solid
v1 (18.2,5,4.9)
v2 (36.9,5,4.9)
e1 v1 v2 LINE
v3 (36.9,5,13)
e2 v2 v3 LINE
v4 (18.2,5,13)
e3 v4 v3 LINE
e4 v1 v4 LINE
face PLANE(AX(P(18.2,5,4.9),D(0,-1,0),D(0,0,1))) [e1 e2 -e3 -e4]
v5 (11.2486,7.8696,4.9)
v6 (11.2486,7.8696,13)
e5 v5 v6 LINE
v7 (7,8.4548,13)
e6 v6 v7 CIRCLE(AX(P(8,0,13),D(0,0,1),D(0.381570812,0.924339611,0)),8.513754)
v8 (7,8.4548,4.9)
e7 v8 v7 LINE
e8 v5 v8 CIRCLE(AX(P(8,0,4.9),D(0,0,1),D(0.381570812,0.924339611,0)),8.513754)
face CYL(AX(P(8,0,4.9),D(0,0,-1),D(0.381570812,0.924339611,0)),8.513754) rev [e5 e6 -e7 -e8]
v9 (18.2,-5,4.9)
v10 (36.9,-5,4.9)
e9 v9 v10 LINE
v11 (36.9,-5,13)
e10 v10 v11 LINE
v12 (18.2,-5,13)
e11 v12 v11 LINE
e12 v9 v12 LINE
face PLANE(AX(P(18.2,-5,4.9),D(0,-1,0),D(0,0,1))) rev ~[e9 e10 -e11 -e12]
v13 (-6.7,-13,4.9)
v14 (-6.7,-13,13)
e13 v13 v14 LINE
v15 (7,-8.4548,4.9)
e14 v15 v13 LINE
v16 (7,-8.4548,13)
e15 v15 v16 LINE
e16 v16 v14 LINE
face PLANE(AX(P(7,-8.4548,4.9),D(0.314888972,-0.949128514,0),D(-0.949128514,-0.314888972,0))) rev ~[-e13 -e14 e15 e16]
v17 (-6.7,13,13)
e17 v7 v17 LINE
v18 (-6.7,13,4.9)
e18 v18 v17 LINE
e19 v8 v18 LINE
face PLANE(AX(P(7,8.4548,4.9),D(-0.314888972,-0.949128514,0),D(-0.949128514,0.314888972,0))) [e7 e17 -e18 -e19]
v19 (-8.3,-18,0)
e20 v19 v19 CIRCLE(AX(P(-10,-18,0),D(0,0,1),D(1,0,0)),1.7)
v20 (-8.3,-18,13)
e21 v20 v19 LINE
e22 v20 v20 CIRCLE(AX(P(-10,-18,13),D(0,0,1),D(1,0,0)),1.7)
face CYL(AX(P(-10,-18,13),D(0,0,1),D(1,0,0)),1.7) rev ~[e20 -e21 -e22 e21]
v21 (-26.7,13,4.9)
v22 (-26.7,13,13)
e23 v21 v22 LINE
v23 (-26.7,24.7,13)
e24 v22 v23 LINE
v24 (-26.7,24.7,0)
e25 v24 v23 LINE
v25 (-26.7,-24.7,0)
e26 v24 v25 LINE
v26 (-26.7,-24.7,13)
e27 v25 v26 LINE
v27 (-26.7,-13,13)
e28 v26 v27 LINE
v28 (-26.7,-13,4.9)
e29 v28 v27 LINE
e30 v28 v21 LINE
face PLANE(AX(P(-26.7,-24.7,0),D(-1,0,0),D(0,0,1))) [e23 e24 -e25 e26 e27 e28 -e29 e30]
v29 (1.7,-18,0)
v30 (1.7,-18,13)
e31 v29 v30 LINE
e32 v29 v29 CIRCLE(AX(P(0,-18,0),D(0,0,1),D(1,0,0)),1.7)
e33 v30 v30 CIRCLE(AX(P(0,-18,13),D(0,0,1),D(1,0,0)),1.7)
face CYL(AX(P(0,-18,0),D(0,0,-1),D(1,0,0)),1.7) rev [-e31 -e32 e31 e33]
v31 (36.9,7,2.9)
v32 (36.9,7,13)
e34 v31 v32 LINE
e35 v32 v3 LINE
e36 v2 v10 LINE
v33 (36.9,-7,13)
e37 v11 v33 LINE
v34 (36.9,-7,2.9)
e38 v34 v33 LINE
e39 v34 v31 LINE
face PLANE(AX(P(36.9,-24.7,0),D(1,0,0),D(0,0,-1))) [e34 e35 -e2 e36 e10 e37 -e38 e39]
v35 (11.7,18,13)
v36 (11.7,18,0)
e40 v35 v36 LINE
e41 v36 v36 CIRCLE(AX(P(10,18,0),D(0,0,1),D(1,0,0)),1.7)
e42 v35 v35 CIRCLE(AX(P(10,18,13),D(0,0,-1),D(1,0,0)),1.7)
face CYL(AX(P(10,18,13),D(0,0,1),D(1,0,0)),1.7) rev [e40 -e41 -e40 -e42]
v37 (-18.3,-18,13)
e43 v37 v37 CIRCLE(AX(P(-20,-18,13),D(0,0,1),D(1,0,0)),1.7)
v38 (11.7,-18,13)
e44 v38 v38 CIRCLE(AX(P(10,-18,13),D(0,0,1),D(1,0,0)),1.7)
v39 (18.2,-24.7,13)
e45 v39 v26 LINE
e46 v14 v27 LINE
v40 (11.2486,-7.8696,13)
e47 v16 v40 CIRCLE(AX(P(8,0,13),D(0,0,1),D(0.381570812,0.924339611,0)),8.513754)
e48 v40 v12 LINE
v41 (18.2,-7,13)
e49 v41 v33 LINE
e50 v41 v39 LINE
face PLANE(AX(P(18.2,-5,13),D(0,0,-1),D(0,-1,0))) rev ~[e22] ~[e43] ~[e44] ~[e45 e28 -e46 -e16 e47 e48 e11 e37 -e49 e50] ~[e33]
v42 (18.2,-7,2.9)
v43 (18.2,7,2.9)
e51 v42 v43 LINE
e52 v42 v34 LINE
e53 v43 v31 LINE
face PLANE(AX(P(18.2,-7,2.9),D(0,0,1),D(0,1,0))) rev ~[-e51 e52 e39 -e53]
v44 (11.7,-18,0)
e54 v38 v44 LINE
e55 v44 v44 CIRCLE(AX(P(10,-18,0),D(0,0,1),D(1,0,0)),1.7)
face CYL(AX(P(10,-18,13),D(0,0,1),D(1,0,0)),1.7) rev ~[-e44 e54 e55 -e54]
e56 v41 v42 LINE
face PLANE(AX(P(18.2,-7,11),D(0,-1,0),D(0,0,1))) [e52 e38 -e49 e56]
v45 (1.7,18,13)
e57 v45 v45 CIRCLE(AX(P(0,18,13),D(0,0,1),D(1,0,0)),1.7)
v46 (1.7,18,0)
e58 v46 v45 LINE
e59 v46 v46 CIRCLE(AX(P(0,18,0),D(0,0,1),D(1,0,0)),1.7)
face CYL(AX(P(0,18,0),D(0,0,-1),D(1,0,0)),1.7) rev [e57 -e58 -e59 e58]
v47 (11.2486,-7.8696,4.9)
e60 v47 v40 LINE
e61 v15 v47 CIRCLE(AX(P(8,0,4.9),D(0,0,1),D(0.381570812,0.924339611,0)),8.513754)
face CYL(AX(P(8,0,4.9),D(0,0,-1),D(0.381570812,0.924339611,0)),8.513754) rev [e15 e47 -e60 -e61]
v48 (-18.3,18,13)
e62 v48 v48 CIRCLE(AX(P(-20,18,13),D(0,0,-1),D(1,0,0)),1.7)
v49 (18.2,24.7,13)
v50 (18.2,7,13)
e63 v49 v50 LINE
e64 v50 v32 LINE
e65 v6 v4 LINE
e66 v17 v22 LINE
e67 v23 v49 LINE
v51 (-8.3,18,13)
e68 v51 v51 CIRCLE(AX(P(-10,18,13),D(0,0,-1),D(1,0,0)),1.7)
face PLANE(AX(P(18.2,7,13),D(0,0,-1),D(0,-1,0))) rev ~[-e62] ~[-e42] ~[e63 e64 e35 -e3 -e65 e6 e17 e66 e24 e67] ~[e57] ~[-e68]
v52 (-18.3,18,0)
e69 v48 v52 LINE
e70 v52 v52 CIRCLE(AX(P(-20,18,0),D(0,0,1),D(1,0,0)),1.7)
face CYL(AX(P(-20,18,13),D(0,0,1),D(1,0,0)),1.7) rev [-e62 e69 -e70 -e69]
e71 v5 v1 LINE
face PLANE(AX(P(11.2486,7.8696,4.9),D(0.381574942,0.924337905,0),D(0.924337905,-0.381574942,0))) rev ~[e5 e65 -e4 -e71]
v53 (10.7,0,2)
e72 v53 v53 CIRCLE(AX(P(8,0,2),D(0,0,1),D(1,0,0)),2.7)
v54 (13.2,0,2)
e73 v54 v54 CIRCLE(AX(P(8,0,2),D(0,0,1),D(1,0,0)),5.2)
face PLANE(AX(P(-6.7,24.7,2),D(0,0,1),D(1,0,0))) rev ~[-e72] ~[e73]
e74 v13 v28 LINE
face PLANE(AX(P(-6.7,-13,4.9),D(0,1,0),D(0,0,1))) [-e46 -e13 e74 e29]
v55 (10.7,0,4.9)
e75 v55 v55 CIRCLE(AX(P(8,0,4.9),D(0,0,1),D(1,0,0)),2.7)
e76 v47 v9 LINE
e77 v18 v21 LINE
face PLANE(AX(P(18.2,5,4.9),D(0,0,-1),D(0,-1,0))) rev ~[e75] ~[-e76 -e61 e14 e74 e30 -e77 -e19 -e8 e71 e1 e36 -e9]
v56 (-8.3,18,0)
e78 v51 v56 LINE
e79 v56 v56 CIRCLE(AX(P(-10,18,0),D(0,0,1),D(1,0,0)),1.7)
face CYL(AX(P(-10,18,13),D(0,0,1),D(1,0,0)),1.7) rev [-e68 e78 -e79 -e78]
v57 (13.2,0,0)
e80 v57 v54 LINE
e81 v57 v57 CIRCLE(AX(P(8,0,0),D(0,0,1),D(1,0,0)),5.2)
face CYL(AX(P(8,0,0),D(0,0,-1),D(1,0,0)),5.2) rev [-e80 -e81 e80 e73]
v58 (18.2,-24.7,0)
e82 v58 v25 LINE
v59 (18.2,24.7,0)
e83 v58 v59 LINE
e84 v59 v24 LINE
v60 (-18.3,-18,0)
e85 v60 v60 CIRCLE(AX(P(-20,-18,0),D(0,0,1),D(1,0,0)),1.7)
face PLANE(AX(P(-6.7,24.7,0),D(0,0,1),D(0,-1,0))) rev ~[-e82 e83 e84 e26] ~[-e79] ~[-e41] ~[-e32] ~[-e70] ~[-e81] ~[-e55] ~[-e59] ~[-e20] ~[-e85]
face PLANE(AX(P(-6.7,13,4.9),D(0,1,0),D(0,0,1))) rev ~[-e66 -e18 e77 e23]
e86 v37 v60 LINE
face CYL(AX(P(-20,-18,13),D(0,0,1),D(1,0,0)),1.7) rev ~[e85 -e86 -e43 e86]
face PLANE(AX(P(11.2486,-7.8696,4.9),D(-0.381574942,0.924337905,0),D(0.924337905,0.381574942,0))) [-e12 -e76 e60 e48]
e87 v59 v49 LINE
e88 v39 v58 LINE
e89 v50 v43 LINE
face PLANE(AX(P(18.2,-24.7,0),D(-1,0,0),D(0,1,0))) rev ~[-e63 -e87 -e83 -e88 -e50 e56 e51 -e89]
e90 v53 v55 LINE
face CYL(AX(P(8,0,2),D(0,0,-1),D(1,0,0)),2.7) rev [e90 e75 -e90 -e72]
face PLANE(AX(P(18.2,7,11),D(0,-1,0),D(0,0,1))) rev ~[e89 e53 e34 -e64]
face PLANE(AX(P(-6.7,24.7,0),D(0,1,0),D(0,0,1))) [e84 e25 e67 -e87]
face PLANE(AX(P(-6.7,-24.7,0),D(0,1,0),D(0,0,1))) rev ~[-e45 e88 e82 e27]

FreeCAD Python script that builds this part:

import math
import FreeCAD as App
import Part
import Sketcher


def add_polygon(sketch, points):
    """Adds a closed chain of lines whose ends are joined by coincident constraints."""
    first, n = sketch.GeometryCount, len(points)
    for a, b in zip(points, points[1:] + points[:1]):
        sketch.addGeometry(Part.LineSegment(App.Vector(*a, 0), App.Vector(*b, 0)), False)
    for i in range(n):
        sketch.addConstraint(Sketcher.Constraint("Coincident", first + i, 2, first + (i + 1) % n, 1))

doc = App.newDocument("Part")
body = doc.addObject("PartDesign::Body", "Body")

sketch1 = body.newObject("Sketcher::SketchObject", "Sketch")
sketch1.AttachmentSupport = (doc.getObject("XY_Plane"), [""])
sketch1.MapMode = "FlatFace"
add_polygon(sketch1, [(18.2, -24.7), (18.2, 24.7), (-6.7, 24.7), (-6.7, -24.7)])
sketch1.addGeometry(Part.Circle(App.Vector(0, -18, 0), App.Vector(0, 0, 1), 1.7), False)
sketch1.addGeometry(Part.Circle(App.Vector(0, 18, 0), App.Vector(0, 0, 1), 1.7), False)
sketch1.addGeometry(Part.Circle(App.Vector(8, 0, 0), App.Vector(0, 0, 1), 5.2), False)
sketch1.addConstraint([
    Sketcher.Constraint("Vertical", 0),
    Sketcher.Constraint("Horizontal", 1),
    Sketcher.Constraint("Vertical", 2),
    Sketcher.Constraint("Horizontal", 3),
    Sketcher.Constraint("Equal", 4, 5),
    Sketcher.Constraint("Symmetric", 4, 3, 5, 3, -1, 1),
    Sketcher.Constraint("PointOnObject", 4, 3, -2),
    Sketcher.Constraint("PointOnObject", 6, 3, -1),
    Sketcher.Constraint("Diameter", 4, 3.4),
    Sketcher.Constraint("Diameter", 6, 10.4),
    Sketcher.Constraint("DistanceX", 1, 2, 1, 1, 24.9),
    Sketcher.Constraint("DistanceY", 0, 1, 0, 2, 49.4),
    Sketcher.Constraint("DistanceY", 4, 3, -1, 1, 18.0),
    Sketcher.Constraint("DistanceX", -1, 1, 6, 3, 8.0),
    Sketcher.Constraint("DistanceX", -1, 1, 0, 2, 18.2),
    Sketcher.Constraint("DistanceY", -1, 1, 0, 2, 24.7),
])
pad1 = body.newObject("PartDesign::Pad", "Pad")
pad1.Profile = sketch1
pad1.Length = 2

sketch2 = body.newObject("Sketcher::SketchObject", "Sketch001")
sketch2.AttachmentSupport = (doc.getObject("XY_Plane"), [""])
sketch2.MapMode = "FlatFace"
sketch2.AttachmentOffset = App.Placement(App.Vector(0, 0, 2), App.Rotation())
add_polygon(sketch2, [(18.2, 24.7), (-6.7, 24.7), (-6.7, -24.7), (18.2, -24.7)])
sketch2.addGeometry(Part.Circle(App.Vector(0, -18, 0), App.Vector(0, 0, 1), 1.7), False)
sketch2.addGeometry(Part.Circle(App.Vector(0, 18, 0), App.Vector(0, 0, 1), 1.7), False)
sketch2.addGeometry(Part.Circle(App.Vector(8, 0, 0), App.Vector(0, 0, 1), 2.7), False)
sketch2.addConstraint([
    Sketcher.Constraint("Horizontal", 0),
    Sketcher.Constraint("Vertical", 1),
    Sketcher.Constraint("Horizontal", 2),
    Sketcher.Constraint("Vertical", 3),
    Sketcher.Constraint("Equal", 4, 5),
    Sketcher.Constraint("Symmetric", 4, 3, 5, 3, -1, 1),
    Sketcher.Constraint("PointOnObject", 4, 3, -2),
    Sketcher.Constraint("PointOnObject", 6, 3, -1),
    Sketcher.Constraint("Diameter", 4, 3.4),
    Sketcher.Constraint("Diameter", 6, 5.4),
    Sketcher.Constraint("DistanceX", 0, 2, 0, 1, 24.9),
    Sketcher.Constraint("DistanceY", 1, 2, 1, 1, 49.4),
    Sketcher.Constraint("DistanceY", 4, 3, -1, 1, 18.0),
    Sketcher.Constraint("DistanceX", -1, 1, 6, 3, 8.0),
    Sketcher.Constraint("DistanceX", 0, 2, -1, 1, 6.7),
    Sketcher.Constraint("DistanceY", -1, 1, 0, 2, 24.7),
])
pad2 = body.newObject("PartDesign::Pad", "Pad001")
pad2.Profile = sketch2
pad2.Length = 2.9

sketch3 = body.newObject("Sketcher::SketchObject", "Sketch002")
sketch3.AttachmentSupport = (doc.getObject("XY_Plane"), [""])
sketch3.MapMode = "FlatFace"
sketch3.AttachmentOffset = App.Placement(App.Vector(0, 0, 4.9), App.Rotation())
sketch3.addGeometry([
    Part.ArcOfCircle(Part.Circle(App.Vector(8, 0, 0), App.Vector(0, 0, 1), 8.513754), math.radians(67.568984), math.radians(96.745378)),
    Part.LineSegment(App.Vector(11.2486, 7.8696, 0), App.Vector(18.2, 5, 0)),
    Part.LineSegment(App.Vector(18.2, 5, 0), App.Vector(18.2, 24.7, 0)),
    Part.LineSegment(App.Vector(18.2, 24.7, 0), App.Vector(-6.7, 24.7, 0)),
    Part.LineSegment(App.Vector(-6.7, 24.7, 0), App.Vector(-6.7, 13, 0)),
    Part.LineSegment(App.Vector(-6.7, 13, 0), App.Vector(7, 8.4548, 0)),
    Part.Circle(App.Vector(0, 18, 0), App.Vector(0, 0, 1), 1.7),
    Part.ArcOfCircle(Part.Circle(App.Vector(8, 0, 0), App.Vector(0, 0, 1), 8.513754), math.radians(-96.745378), math.radians(-67.568984)),
    Part.LineSegment(App.Vector(7, -8.4548, 0), App.Vector(-6.7, -13, 0)),
    Part.LineSegment(App.Vector(-6.7, -13, 0), App.Vector(-6.7, -24.7, 0)),
    Part.LineSegment(App.Vector(-6.7, -24.7, 0), App.Vector(18.2, -24.7, 0)),
    Part.LineSegment(App.Vector(18.2, -24.7, 0), App.Vector(18.2, -5, 0)),
    Part.LineSegment(App.Vector(18.2, -5, 0), App.Vector(11.2486, -7.8696, 0)),
    Part.Circle(App.Vector(0, -18, 0), App.Vector(0, 0, 1), 1.7),
], False)
sketch3.addConstraint([
    Sketcher.Constraint("Tangent", 0, 1, 1, 1),
    Sketcher.Constraint("Coincident", 1, 2, 2, 1),
    Sketcher.Constraint("Coincident", 2, 2, 3, 1),
    Sketcher.Constraint("Coincident", 3, 2, 4, 1),
    Sketcher.Constraint("Coincident", 4, 2, 5, 1),
    Sketcher.Constraint("Coincident", 5, 2, 0, 2),
    Sketcher.Constraint("Coincident", 7, 1, 8, 1),
    Sketcher.Constraint("Coincident", 8, 2, 9, 1),
    Sketcher.Constraint("Coincident", 9, 2, 10, 1),
    Sketcher.Constraint("Coincident", 10, 2, 11, 1),
    Sketcher.Constraint("Coincident", 11, 2, 12, 1),
    Sketcher.Constraint("Tangent", 12, 2, 7, 2),
    Sketcher.Constraint("Vertical", 2),
    Sketcher.Constraint("Horizontal", 3),
    Sketcher.Constraint("Vertical", 4),
    Sketcher.Constraint("Vertical", 9),
    Sketcher.Constraint("Horizontal", 10),
    Sketcher.Constraint("Vertical", 11),
    Sketcher.Constraint("Coincident", 7, 3, 0, 3),
    Sketcher.Constraint("Equal", 0, 7),
    Sketcher.Constraint("Equal", 6, 13),
    Sketcher.Constraint("Symmetric", 6, 3, 13, 3, -1, 1),
    Sketcher.Constraint("Symmetric", 5, 2, 7, 1, -1),
    Sketcher.Constraint("Symmetric", 4, 2, 8, 2, -1),
    Sketcher.Constraint("Symmetric", 2, 2, 10, 2, -1),
    Sketcher.Constraint("PointOnObject", 6, 3, -2),
    Sketcher.Constraint("Vertical", 0, 1, 12, 2),
    Sketcher.Constraint("DistanceY", -1, 1, 1, 2, 5.0),
    Sketcher.Constraint("DistanceY", 4, 2, 6, 3, 5.0),
    Sketcher.Constraint("Diameter", 6, 3.4),
    Sketcher.Constraint("DistanceX", 3, 2, 3, 1, 24.9),
    Sketcher.Constraint("DistanceY", 2, 1, 2, 2, 19.7),
    Sketcher.Constraint("DistanceY", 4, 2, 4, 1, 11.7),
    Sketcher.Constraint("DistanceX", -1, 1, 0, 3, 8.0),
    Sketcher.Constraint("DistanceX", -1, 1, 5, 2, 7.0),
    Sketcher.Constraint("DistanceX", -1, 1, 1, 2, 18.2),
    Sketcher.Constraint("Radius", 0, 8.5138),
])
pad3 = body.newObject("PartDesign::Pad", "Pad002")
pad3.Profile = sketch3
pad3.Length = 8.1

sketch4 = body.newObject("Sketcher::SketchObject", "Sketch003")
sketch4.AttachmentSupport = (doc.getObject("YZ_Plane"), [""])
sketch4.MapMode = "FlatFace"
sketch4.AttachmentOffset = App.Placement(App.Vector(0, 0, -6.7), App.Rotation())
add_polygon(sketch4, [(24.7, 13), (24.7, 0), (-24.7, 0), (-24.7, 13), (-13, 13), (-13, 4.9), (13, 4.9), (13, 13)])
sketch4.addConstraint([
    Sketcher.Constraint("Vertical", 0),
    Sketcher.Constraint("Horizontal", 1),
    Sketcher.Constraint("Vertical", 2),
    Sketcher.Constraint("Horizontal", 3),
    Sketcher.Constraint("Vertical", 4),
    Sketcher.Constraint("Horizontal", 5),
    Sketcher.Constraint("Vertical", 6),
    Sketcher.Constraint("Horizontal", 7),
    Sketcher.Constraint("Symmetric", 0, 2, 1, 2, -1, 1),
    Sketcher.Constraint("Symmetric", 3, 2, 6, 2, -2),
    Sketcher.Constraint("DistanceX", 5, 1, 5, 2, 26.0),
    Sketcher.Constraint("DistanceY", 0, 2, 0, 1, 13.0),
    Sketcher.Constraint("DistanceX", 1, 2, 1, 1, 49.4),
    Sketcher.Constraint("DistanceY", 4, 2, 4, 1, 8.1),
])
pad4 = body.newObject("PartDesign::Pad", "Pad003")
pad4.Profile = sketch4
pad4.Length = 20
pad4.Reversed = True

sketch5 = body.newObject("Sketcher::SketchObject", "Sketch004")
sketch5.AttachmentSupport = (doc.getObject("XY_Plane"), [""])
sketch5.MapMode = "FlatFace"
sketch5.AttachmentOffset = App.Placement(App.Vector(0, 0, 13), App.Rotation())
sketch5.addGeometry([
    Part.Circle(App.Vector(-10, -18, 0), App.Vector(0, 0, 1), 1.7),
    Part.Circle(App.Vector(-20, -18, 0), App.Vector(0, 0, 1), 1.7),
    Part.Circle(App.Vector(10, -18, 0), App.Vector(0, 0, 1), 1.7),
], False)
sketch5.addConstraint([
    Sketcher.Constraint("Equal", 0, 1),
    Sketcher.Constraint("Equal", 1, 2),
    Sketcher.Constraint("Symmetric", 0, 3, 2, 3, -2),
    Sketcher.Constraint("Horizontal", 0, 3, 1, 3),
    Sketcher.Constraint("DistanceX", 0, 3, -1, 1, 10.0),
    Sketcher.Constraint("DistanceX", 1, 3, 0, 3, 10.0),
    Sketcher.Constraint("Diameter", 0, 3.4),
    Sketcher.Constraint("DistanceY", 0, 3, -1, 1, 18.0),
])
pocket1 = body.newObject("PartDesign::Pocket", "Pocket")
pocket1.Profile = sketch5
pocket1.Type = "ThroughAll"
doc.recompute()

mirrored = body.newObject("PartDesign::Mirrored", "Mirrored")
mirrored.Originals = [pocket1]
mirrored.MirrorPlane = (doc.getObject("XZ_Plane"), [""])
body.Tip = mirrored

sketch6 = body.newObject("Sketcher::SketchObject", "Sketch005")
sketch6.AttachmentSupport = (doc.getObject("YZ_Plane"), [""])
sketch6.MapMode = "FlatFace"
sketch6.AttachmentOffset = App.Placement(App.Vector(0, 0, 18.2), App.Rotation())
add_polygon(sketch6, [(-5, 13), (-7, 13), (-7, 2.9), (7, 2.9), (7, 13), (5, 13), (5, 4.9), (-5, 4.9)])
sketch6.addConstraint([
    Sketcher.Constraint("Horizontal", 0),
    Sketcher.Constraint("Vertical", 1),
    Sketcher.Constraint("Horizontal", 2),
    Sketcher.Constraint("Vertical", 3),
    Sketcher.Constraint("Horizontal", 4),
    Sketcher.Constraint("Vertical", 5),
    Sketcher.Constraint("Horizontal", 6),
    Sketcher.Constraint("Vertical", 7),
    Sketcher.Constraint("Symmetric", 0, 2, 3, 2, -2),
    Sketcher.Constraint("Equal", 0, 4),
    Sketcher.Constraint("DistanceX", 0, 2, 0, 1, 2.0),
    Sketcher.Constraint("DistanceY", 2, 2, 5, 2, 2.0),
    Sketcher.Constraint("DistanceX", 2, 1, 2, 2, 14.0),
    Sketcher.Constraint("DistanceY", 1, 2, 1, 1, 10.1),
    Sketcher.Constraint("DistanceY", -1, 1, 0, 2, 13.0),
])
pad5 = body.newObject("PartDesign::Pad", "Pad004")
pad5.Profile = sketch6
pad5.Length = 18.7

doc.recompute()
